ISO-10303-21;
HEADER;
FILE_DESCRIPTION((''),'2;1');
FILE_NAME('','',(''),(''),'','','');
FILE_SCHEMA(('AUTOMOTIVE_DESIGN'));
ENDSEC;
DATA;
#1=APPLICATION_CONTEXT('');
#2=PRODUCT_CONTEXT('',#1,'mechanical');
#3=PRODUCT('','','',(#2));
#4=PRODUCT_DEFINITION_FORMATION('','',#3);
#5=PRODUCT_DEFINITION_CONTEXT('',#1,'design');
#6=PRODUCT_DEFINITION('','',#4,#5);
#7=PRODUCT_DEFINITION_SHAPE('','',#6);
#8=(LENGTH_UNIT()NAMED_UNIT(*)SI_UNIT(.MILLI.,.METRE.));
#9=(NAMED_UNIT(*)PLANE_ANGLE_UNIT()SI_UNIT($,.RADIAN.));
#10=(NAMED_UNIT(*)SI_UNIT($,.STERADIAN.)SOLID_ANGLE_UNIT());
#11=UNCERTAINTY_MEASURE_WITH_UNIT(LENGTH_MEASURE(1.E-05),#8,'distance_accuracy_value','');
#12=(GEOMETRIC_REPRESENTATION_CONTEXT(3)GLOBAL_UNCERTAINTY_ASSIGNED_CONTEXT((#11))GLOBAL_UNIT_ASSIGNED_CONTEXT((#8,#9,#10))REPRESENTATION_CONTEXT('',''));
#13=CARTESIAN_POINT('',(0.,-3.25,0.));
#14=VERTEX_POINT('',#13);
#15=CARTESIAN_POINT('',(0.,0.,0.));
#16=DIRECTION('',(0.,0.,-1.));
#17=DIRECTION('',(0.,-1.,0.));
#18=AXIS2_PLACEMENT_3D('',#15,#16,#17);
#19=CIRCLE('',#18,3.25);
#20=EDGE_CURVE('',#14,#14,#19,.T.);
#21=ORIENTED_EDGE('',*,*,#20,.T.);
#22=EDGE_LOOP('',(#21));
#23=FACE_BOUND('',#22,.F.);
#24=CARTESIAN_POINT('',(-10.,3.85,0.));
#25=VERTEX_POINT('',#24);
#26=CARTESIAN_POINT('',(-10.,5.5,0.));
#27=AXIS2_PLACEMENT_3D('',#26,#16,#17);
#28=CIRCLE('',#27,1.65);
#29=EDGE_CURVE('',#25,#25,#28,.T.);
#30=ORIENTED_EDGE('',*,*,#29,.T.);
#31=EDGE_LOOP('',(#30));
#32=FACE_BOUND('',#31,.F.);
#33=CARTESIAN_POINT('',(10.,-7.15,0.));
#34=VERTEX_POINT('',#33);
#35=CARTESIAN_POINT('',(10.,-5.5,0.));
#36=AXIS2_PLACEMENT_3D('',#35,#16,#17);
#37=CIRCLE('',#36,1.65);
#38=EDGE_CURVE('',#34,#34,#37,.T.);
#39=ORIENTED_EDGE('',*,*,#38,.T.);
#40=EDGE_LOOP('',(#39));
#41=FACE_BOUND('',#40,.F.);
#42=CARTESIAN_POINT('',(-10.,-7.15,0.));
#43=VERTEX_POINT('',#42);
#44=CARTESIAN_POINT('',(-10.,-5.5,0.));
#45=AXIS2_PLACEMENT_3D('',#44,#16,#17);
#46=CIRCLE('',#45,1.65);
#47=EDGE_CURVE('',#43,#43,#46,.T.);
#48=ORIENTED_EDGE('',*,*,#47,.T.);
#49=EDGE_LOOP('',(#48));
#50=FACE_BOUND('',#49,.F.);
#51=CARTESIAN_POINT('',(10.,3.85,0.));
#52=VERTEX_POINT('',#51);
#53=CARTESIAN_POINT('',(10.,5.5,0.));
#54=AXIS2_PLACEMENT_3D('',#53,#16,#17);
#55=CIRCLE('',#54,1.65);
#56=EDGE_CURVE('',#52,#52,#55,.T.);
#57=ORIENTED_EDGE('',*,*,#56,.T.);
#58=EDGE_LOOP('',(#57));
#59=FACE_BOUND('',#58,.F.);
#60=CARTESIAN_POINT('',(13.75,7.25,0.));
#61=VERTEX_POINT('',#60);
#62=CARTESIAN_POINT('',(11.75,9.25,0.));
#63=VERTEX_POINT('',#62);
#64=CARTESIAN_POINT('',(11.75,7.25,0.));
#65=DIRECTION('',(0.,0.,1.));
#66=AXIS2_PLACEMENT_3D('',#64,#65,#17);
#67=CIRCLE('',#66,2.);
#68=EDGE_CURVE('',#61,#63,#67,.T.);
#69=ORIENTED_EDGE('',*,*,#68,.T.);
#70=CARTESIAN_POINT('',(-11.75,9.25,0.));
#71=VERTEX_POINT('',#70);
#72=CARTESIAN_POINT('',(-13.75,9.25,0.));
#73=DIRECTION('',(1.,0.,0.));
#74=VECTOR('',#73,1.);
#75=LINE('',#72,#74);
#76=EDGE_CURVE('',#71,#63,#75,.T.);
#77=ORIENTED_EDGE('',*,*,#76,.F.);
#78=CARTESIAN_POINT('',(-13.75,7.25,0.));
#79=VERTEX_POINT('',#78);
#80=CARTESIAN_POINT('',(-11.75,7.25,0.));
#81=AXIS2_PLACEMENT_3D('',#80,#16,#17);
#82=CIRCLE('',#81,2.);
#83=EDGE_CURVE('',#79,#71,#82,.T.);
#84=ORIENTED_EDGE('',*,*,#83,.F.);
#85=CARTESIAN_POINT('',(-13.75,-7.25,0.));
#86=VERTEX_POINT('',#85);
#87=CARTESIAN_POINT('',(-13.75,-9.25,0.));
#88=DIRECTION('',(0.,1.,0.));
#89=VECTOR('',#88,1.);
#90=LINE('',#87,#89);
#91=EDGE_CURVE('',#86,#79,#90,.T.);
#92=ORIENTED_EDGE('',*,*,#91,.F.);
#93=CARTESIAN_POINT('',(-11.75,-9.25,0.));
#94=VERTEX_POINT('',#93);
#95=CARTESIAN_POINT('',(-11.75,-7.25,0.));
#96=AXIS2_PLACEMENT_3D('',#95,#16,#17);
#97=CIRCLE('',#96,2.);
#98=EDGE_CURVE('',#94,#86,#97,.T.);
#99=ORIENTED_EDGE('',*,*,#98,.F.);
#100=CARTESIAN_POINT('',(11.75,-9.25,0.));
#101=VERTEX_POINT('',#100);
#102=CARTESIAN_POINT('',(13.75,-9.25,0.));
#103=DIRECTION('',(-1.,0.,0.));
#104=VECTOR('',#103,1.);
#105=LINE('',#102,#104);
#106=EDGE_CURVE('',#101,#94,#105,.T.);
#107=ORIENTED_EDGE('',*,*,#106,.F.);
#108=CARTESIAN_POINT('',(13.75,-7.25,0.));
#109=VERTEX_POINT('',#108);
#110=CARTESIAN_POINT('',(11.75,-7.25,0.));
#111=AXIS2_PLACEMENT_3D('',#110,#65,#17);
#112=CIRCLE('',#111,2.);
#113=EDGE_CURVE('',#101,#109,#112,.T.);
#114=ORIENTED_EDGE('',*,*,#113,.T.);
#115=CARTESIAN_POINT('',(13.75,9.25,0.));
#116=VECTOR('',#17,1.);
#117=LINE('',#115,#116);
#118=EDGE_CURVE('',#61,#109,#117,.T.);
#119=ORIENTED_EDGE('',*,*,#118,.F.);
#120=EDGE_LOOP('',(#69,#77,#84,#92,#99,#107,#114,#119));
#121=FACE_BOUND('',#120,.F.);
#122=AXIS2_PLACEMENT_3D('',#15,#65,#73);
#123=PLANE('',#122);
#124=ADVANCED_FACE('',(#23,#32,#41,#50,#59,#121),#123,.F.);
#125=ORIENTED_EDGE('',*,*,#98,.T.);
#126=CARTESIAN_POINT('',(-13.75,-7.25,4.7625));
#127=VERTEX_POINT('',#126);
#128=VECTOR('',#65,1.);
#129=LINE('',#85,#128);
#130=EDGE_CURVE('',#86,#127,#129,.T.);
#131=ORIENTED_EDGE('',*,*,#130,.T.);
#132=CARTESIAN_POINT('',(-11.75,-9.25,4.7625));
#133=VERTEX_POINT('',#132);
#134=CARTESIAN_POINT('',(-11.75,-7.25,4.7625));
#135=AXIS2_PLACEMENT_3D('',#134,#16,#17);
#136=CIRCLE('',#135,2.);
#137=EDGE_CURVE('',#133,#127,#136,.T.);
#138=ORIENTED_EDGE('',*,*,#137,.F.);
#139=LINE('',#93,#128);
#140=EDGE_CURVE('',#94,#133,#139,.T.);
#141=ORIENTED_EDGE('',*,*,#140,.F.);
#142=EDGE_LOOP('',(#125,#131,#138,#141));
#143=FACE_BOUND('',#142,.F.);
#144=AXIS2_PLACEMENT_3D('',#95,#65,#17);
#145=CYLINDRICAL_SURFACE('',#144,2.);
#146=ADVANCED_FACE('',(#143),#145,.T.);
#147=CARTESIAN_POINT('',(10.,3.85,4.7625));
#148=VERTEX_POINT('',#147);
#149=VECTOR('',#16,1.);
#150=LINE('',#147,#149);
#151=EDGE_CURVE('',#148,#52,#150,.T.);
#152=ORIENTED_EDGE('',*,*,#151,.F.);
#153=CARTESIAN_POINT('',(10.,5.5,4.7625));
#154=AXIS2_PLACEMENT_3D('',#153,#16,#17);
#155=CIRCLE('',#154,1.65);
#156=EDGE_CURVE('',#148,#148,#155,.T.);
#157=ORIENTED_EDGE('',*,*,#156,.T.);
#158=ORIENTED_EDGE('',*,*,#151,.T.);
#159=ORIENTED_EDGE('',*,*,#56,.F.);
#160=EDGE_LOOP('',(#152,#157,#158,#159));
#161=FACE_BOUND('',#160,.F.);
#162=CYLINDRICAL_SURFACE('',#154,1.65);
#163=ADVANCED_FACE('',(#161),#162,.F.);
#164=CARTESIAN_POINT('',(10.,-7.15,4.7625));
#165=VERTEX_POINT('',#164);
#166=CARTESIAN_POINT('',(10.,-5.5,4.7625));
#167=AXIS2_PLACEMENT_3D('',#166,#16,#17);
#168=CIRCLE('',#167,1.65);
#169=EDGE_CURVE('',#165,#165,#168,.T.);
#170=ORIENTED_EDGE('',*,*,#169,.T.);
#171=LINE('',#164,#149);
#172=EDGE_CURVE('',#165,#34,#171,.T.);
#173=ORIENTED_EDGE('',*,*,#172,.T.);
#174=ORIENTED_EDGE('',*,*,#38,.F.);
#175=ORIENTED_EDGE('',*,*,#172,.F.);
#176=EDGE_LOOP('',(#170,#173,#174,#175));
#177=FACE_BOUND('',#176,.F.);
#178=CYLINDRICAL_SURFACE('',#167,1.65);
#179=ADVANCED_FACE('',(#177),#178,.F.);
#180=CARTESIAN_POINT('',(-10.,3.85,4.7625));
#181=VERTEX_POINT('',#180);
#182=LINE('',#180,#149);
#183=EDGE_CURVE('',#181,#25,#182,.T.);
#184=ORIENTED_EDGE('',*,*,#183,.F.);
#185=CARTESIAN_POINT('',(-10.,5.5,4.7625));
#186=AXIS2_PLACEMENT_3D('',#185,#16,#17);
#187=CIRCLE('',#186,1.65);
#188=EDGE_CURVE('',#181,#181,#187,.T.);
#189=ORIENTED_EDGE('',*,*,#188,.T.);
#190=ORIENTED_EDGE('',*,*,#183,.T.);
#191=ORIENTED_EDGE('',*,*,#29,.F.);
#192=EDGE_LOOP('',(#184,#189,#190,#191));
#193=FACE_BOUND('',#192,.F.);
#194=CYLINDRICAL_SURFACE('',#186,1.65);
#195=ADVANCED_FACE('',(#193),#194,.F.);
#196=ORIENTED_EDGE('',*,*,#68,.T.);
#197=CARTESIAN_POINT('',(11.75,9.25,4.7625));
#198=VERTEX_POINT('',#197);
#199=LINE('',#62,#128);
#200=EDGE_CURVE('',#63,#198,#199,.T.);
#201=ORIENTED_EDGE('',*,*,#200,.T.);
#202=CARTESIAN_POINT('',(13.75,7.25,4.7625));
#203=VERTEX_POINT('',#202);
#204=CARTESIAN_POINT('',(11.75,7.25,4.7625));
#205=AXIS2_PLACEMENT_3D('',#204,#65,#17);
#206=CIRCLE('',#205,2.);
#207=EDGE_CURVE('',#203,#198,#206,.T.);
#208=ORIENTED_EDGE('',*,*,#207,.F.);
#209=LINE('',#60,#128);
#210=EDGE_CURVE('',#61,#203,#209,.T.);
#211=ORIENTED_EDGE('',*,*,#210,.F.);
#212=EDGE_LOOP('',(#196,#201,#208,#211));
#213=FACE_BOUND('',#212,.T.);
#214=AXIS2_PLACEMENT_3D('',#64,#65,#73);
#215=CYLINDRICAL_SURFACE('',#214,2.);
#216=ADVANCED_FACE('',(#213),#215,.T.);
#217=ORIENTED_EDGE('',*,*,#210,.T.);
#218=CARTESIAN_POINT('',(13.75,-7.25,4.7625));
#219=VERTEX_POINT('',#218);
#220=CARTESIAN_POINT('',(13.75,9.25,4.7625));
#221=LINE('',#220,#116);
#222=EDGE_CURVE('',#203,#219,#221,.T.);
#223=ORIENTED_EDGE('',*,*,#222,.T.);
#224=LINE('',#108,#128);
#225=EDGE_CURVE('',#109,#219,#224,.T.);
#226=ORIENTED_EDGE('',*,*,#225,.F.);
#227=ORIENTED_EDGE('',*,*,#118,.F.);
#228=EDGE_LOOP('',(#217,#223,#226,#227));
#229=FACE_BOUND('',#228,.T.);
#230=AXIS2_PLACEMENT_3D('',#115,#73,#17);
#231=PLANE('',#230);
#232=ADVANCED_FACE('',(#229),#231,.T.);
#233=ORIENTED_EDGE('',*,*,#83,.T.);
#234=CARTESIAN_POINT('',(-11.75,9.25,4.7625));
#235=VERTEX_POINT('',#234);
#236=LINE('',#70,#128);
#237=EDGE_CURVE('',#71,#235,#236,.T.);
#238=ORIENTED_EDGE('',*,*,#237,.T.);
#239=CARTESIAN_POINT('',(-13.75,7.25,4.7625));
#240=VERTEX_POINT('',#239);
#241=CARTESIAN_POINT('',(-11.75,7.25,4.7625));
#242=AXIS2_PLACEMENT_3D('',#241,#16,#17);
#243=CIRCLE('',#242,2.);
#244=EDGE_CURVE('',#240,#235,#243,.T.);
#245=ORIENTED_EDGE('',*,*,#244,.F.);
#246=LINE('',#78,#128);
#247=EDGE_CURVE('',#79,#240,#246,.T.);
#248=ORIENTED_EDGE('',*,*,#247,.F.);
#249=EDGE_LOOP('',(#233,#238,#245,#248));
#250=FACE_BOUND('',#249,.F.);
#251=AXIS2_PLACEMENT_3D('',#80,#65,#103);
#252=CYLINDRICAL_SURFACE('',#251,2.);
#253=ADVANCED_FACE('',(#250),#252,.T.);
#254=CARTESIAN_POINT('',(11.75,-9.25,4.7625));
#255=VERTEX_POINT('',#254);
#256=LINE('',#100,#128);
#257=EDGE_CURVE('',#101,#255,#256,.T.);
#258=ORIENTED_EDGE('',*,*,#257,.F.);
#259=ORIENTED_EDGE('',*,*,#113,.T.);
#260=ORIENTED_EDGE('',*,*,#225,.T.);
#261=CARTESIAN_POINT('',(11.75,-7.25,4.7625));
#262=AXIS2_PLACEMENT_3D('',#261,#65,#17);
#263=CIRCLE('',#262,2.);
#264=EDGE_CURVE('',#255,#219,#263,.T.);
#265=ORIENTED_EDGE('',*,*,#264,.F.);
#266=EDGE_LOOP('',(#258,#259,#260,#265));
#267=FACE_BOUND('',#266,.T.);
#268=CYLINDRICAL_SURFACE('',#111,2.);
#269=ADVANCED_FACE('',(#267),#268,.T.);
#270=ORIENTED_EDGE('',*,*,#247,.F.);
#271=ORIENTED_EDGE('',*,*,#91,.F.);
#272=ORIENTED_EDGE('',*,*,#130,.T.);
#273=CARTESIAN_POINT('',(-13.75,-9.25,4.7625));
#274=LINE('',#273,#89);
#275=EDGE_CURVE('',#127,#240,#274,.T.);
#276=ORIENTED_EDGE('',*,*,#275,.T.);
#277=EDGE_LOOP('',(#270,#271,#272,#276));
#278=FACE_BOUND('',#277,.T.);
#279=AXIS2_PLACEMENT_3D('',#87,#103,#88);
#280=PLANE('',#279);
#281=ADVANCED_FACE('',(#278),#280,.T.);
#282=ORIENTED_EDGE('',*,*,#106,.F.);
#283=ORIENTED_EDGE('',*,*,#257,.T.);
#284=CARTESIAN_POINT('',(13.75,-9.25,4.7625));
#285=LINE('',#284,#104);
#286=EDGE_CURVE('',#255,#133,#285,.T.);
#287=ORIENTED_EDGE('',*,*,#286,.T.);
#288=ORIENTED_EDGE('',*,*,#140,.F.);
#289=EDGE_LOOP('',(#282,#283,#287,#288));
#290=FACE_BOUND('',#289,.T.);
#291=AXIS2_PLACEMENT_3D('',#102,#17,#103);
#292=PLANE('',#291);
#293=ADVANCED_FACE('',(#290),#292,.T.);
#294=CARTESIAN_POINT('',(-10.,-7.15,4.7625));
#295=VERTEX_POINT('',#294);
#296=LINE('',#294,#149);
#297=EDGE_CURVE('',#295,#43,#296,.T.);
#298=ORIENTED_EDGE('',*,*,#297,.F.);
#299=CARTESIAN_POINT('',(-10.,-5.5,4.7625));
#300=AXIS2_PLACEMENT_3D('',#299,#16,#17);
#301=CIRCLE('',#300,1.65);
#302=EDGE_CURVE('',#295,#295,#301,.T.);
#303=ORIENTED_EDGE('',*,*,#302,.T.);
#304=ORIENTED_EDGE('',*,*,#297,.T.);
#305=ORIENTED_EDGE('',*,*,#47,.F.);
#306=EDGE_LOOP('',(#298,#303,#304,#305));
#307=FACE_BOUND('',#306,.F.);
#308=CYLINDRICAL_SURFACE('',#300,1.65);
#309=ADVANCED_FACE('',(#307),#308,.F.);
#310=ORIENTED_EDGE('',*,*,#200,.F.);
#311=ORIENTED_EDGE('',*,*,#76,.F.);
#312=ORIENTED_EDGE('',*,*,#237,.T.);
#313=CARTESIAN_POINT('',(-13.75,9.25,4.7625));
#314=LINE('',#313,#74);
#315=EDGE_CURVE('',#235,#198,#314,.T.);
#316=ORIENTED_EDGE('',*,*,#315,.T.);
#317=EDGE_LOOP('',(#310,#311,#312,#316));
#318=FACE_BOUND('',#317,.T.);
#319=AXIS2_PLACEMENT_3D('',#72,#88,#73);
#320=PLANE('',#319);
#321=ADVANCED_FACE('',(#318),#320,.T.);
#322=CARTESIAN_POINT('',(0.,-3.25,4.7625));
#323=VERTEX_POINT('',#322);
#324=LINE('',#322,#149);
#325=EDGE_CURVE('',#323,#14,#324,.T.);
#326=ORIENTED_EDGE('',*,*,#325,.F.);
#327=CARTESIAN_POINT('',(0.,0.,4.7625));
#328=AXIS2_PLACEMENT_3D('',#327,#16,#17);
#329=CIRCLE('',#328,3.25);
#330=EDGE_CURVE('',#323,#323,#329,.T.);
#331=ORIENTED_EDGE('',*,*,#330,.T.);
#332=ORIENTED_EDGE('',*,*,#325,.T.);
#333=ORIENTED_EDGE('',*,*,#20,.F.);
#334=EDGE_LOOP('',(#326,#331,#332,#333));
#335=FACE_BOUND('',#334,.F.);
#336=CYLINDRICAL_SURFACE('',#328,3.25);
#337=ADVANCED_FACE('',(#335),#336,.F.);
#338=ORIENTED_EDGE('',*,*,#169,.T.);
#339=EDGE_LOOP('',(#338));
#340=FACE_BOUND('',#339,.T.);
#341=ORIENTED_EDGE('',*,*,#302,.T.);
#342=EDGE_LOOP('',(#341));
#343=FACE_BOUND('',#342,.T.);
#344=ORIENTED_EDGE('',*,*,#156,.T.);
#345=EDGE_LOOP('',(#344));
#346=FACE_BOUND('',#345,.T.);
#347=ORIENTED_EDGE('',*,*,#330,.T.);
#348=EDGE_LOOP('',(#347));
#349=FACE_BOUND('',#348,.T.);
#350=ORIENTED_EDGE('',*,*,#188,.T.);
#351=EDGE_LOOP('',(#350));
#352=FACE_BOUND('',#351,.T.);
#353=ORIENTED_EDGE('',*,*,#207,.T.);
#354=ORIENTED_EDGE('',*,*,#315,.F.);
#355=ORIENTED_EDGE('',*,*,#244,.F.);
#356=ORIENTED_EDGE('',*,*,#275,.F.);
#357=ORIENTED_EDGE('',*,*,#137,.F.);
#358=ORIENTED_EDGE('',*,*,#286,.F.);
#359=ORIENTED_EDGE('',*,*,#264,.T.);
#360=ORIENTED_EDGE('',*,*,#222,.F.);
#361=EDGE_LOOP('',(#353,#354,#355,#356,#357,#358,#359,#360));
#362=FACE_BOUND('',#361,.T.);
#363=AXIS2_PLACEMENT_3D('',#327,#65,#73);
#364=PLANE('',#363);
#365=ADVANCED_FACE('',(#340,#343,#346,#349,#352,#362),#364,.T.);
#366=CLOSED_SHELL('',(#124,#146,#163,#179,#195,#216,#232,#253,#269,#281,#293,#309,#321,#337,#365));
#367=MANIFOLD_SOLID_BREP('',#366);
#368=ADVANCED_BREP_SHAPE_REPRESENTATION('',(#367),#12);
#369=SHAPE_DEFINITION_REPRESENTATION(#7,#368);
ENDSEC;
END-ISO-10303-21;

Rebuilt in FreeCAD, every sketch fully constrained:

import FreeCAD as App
import Part
import Sketcher


def edges_at(feature, points):
    """Names of the edges that pass closest to the given points."""
    edges = feature.Shape.Edges
    near = lambda p: min(range(len(edges)), key=lambda i: edges[i].distToShape(Part.Vertex(*p))[0])
    return sorted({f"Edge{near(p) + 1}" for p in points})


def add_polygon(sketch, points):
    """Adds a closed chain of lines whose ends are joined by coincident constraints."""
    first, n = sketch.GeometryCount, len(points)
    for a, b in zip(points, points[1:] + points[:1]):
        sketch.addGeometry(Part.LineSegment(App.Vector(*a, 0), App.Vector(*b, 0)), False)
    for i in range(n):
        sketch.addConstraint(Sketcher.Constraint("Coincident", first + i, 2, first + (i + 1) % n, 1))

doc = App.newDocument("Part")
params = doc.addObject("Spreadsheet::Sheet", "Params")
for row, (alias, value) in enumerate([
    ("sketch1_width", "27.5 mm"),
    ("sketch1_height", "18.5 mm"),
    ("pad1_length", "4.7625 mm"),
    ("sketch2_diameter", "3.3 mm"),
    ("hole_diameter", "3.3 mm"),
    ("sketch3_diameter", "6.5 mm"),
    ("hole2_diameter", "6.5 mm"),
    ("fillet_radius", "2 mm"),
], start=1):
    params.set(f"A{row}", alias)
    params.set(f"B{row}", "=" + value)
    params.setAlias(f"B{row}", alias)

body = doc.addObject("PartDesign::Body", "Body")

# Sketch on XY plane
sketch1 = body.newObject("Sketcher::SketchObject", "Sketch")
sketch1.AttachmentSupport = (doc.getObject("XY_Plane"), [""])
sketch1.MapMode = "FlatFace"
add_polygon(sketch1, [(-14, -9), (14, -9), (14, 9), (-14, 9)])  # lines 0-3
sketch1.addConstraint([
    Sketcher.Constraint("Horizontal", 0),
    Sketcher.Constraint("Vertical", 1),
    Sketcher.Constraint("Horizontal", 2),
    Sketcher.Constraint("Vertical", 3),
    Sketcher.Constraint("Symmetric", 0, 2, 2, 2, -1, 1),
    Sketcher.Constraint("DistanceX", 0, 1, 0, 2, 27.5),
    Sketcher.Constraint("DistanceY", 1, 1, 1, 2, 18.5),
])
sketch1.setExpression("Constraints[9]", "Params.sketch1_width")
sketch1.setExpression("Constraints[10]", "Params.sketch1_height")
pad1 = body.newObject("PartDesign::Pad", "Pad")
pad1.Profile = sketch1
pad1.setExpression("Length", "Params.pad1_length")

# Sketch on XY plane
sketch2 = body.newObject("Sketcher::SketchObject", "Sketch001")
sketch2.AttachmentSupport = (doc.getObject("XY_Plane"), [""])
sketch2.MapMode = "FlatFace"
sketch2.AttachmentOffset = App.Placement(App.Vector(0, 0, 4.7625), App.Rotation())
sketch2.addGeometry([
    Part.Circle(App.Vector(-10, 5.5, 0), App.Vector(0, 0, 1), 1.6),
    Part.Circle(App.Vector(10, 5.5, 0), App.Vector(0, 0, 1), 1.6),
    Part.Circle(App.Vector(10, -5.5, 0), App.Vector(0, 0, 1), 1.6),
    Part.Circle(App.Vector(-10, -5.5, 0), App.Vector(0, 0, 1), 1.6),
], False)
sketch2.addConstraint([
    Sketcher.Constraint("Equal", 0, 1),
    Sketcher.Constraint("Equal", 1, 2),
    Sketcher.Constraint("Equal", 2, 3),
    Sketcher.Constraint("Symmetric", 0, 3, 2, 3, -1, 1),
    Sketcher.Constraint("Symmetric", 1, 3, 3, 3, -1, 1),
    Sketcher.Constraint("Symmetric", 0, 3, 1, 3, -2),
    Sketcher.Constraint("Diameter", 0, 3.3),
    Sketcher.Constraint("DistanceX", 0, 3, -1, 1, 10.0),
    Sketcher.Constraint("DistanceY", 2, 3, 1, 3, 11.0),
])
sketch2.setExpression("Constraints[6]", "Params.sketch2_diameter")
doc.recompute()
hole = body.newObject("PartDesign::Hole", "Hole")
hole.Profile = sketch2
hole.ThreadType = "None"
hole.setExpression("Diameter", "Params.hole_diameter")
hole.DepthType = "ThroughAll"

# Sketch on XY plane
sketch3 = body.newObject("Sketcher::SketchObject", "Sketch002")
sketch3.AttachmentSupport = (doc.getObject("XY_Plane"), [""])
sketch3.MapMode = "FlatFace"
sketch3.AttachmentOffset = App.Placement(App.Vector(0, 0, 4.7625), App.Rotation())
sketch3.addGeometry(Part.Circle(App.Vector(0, 0, 0), App.Vector(0, 0, 1), 3.2), False)
sketch3.addConstraint([
    Sketcher.Constraint("Coincident", 0, 3, -1, 1),
    Sketcher.Constraint("Diameter", 0, 6.5),
])
sketch3.setExpression("Constraints[1]", "Params.sketch3_diameter")
doc.recompute()
hole2 = body.newObject("PartDesign::Hole", "Hole001")
hole2.Profile = sketch3
hole2.ThreadType = "None"
hole2.setExpression("Diameter", "Params.hole2_diameter")
hole2.DepthType = "ThroughAll"
doc.recompute()

fillet = body.newObject("PartDesign::Fillet", "Fillet")
fillet.Base = (hole2, edges_at(hole2, [
    (-13.75, 9.25, 2.381),
    (-13.75, -9.25, 2.381),
    (13.75, -9.25, 2.381),
    (13.75, 9.25, 2.381),
]))
fillet.setExpression("Radius", "Params.fillet_radius")

doc.recompute()
